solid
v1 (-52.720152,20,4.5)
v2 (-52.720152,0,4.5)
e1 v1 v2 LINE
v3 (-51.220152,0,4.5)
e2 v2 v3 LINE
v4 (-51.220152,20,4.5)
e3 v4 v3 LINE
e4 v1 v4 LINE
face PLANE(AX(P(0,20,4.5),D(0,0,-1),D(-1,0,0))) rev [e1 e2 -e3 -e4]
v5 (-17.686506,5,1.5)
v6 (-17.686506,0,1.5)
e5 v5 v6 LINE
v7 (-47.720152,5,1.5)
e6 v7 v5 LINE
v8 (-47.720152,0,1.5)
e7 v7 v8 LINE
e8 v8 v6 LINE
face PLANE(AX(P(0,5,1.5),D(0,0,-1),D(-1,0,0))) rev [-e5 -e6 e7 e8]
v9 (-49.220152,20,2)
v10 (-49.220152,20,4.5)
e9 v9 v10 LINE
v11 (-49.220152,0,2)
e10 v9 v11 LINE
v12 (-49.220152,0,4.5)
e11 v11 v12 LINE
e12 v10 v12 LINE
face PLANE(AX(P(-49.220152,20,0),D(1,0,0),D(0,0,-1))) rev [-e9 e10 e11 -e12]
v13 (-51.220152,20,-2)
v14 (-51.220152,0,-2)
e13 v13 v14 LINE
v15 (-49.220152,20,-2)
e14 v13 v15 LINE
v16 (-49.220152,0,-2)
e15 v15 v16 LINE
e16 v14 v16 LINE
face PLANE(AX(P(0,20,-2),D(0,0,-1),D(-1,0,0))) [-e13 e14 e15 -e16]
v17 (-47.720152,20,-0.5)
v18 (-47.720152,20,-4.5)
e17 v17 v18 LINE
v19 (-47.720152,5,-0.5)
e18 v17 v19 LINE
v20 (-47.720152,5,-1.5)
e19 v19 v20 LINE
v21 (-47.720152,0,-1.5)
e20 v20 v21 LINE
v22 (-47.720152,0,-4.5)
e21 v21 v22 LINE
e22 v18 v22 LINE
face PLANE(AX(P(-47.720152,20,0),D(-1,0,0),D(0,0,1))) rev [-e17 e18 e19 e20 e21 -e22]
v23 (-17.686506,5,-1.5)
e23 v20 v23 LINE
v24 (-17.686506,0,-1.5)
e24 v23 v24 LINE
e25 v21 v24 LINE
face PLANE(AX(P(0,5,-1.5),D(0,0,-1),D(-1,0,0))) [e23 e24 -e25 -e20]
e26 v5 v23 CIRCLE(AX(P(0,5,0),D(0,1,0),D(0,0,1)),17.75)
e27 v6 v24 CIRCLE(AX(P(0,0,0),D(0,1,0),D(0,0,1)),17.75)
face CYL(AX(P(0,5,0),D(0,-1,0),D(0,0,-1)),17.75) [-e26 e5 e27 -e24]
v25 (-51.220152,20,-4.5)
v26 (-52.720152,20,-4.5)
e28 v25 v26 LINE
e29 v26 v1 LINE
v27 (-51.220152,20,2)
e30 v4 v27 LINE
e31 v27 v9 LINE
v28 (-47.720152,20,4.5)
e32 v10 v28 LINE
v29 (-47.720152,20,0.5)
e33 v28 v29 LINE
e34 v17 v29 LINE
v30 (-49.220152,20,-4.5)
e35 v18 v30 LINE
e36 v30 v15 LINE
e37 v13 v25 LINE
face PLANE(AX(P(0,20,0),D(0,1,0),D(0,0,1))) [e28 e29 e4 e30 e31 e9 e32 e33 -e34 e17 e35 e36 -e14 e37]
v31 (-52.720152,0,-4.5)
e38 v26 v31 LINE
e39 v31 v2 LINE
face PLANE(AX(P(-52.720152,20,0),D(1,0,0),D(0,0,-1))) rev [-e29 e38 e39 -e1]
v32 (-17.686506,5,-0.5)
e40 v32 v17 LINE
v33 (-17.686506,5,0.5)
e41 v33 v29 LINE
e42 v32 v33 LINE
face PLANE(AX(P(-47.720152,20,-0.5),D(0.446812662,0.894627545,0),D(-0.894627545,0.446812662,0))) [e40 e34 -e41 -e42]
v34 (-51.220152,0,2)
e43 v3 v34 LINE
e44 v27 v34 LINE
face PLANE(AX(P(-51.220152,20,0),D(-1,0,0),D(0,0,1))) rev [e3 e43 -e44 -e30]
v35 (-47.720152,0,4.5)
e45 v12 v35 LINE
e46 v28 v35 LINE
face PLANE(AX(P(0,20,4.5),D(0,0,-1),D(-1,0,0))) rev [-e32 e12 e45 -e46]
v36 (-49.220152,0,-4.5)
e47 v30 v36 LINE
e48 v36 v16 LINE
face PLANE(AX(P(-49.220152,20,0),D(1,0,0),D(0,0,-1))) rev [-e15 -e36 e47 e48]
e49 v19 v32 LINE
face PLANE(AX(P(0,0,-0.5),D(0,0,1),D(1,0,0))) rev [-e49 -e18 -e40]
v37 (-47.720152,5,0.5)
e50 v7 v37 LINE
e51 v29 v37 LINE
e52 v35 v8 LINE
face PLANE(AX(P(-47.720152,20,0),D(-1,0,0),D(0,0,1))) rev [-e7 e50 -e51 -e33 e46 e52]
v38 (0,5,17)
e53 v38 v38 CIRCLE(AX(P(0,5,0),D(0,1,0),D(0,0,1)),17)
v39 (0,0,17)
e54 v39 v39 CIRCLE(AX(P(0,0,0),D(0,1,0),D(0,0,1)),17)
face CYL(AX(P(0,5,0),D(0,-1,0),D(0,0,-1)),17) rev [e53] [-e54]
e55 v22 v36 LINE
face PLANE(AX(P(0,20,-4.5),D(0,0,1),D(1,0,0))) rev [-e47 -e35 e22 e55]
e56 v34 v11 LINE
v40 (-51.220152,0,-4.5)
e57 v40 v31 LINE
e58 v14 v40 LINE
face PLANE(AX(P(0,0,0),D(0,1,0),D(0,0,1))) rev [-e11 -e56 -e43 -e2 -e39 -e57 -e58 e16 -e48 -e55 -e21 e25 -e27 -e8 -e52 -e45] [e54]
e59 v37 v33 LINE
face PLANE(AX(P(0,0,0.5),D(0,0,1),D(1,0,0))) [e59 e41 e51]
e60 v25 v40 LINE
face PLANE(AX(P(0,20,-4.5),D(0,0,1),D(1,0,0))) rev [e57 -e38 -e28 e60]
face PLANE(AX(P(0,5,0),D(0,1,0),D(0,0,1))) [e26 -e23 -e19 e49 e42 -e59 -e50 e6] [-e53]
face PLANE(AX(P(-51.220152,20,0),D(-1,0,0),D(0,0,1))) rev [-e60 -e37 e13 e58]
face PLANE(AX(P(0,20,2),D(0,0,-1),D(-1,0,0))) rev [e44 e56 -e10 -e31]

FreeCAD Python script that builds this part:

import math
import FreeCAD as App
import Part
import Sketcher

V = App.Vector

doc = App.newDocument("Part")
params = doc.addObject("Spreadsheet::Sheet", "Params")
for row, (alias, value) in enumerate([
    ("sketch1_diameter", "34 mm"),
    ("sketch1_height", "3 mm"),
    ("sketch1_radius", "17.75 mm"),
    ("pad1_length", "5 mm"),
    ("sketch2_width", "2 mm"),
    ("sketch2_height", "9 mm"),
    ("sketch2_width2", "1.5 mm"),
    ("sketch2_height2", "2.5 mm"),
    ("pad2_length", "20 mm"),
    ("sketch3_height", "15 mm"),
    ("pad3_length", "1 mm"),
], start=1):
    params.set(f"A{row}", alias)
    params.set(f"B{row}", "=" + value)
    params.setAlias(f"B{row}", alias)

body = doc.addObject("PartDesign::Body", "Body")

sketch1 = doc.addObject("Sketcher::SketchObject", "Sketch")
body.addObject(sketch1)
sketch1.AttachmentSupport = (doc.XZ_Plane, [""])
sketch1.MapMode = "FlatFace"
sketch1.addGeometry(Part.LineSegment(V(-17.686506, -1.5, 0), V(-47.720152, -1.5, 0)), False)
sketch1.addGeometry(Part.LineSegment(V(-47.720152, -1.5, 0), V(-47.720152, 1.5, 0)), False)
sketch1.addGeometry(Part.LineSegment(V(-47.720152, 1.5, 0), V(-17.686506, 1.5, 0)), False)
sketch1.addGeometry(Part.ArcOfCircle(Part.Circle(V(0, 0, 0), V(0, 0, 1), 17.75), math.radians(-175.152322), math.radians(175.152322)), False)
sketch1.addGeometry(Part.Circle(V(0, 0, 0), V(0, 0, 1), 17), False)
sketch1.addConstraint(Sketcher.Constraint("Coincident", 0, 2, 1, 1))
sketch1.addConstraint(Sketcher.Constraint("Coincident", 1, 2, 2, 1))
sketch1.addConstraint(Sketcher.Constraint("Coincident", 2, 2, 3, 2))
sketch1.addConstraint(Sketcher.Constraint("Coincident", 3, 1, 0, 1))
sketch1.addConstraint(Sketcher.Constraint("Horizontal", 0))
sketch1.addConstraint(Sketcher.Constraint("Vertical", 1))
sketch1.addConstraint(Sketcher.Constraint("Horizontal", 2))
sketch1.addConstraint(Sketcher.Constraint("Coincident", 3, 3, -1, 1))
sketch1.addConstraint(Sketcher.Constraint("Coincident", 4, 3, -1, 1))
sketch1.addConstraint(Sketcher.Constraint("Vertical", 2, 2, 3, 1))
sketch1.addConstraint(Sketcher.Constraint("Diameter", 4, 34.0))
sketch1.addConstraint(Sketcher.Constraint("DistanceY", 1, 1, 1, 2, 3.0))
sketch1.addConstraint(Sketcher.Constraint("Radius", 3, 17.75))
sketch1.addConstraint(Sketcher.Constraint("DistanceX", 0, 2, 0, 1, 30.033646))
sketch1.setExpression("Constraints[10]", "Params.sketch1_diameter")
sketch1.setExpression("Constraints[11]", "Params.sketch1_height")
sketch1.setExpression("Constraints[12]", "Params.sketch1_radius")
pad1 = doc.addObject("PartDesign::Pad", "Pad")
body.addObject(pad1)
pad1.Profile = sketch1
pad1.setExpression("Length", "Params.pad1_length")
pad1.Reversed = True

sketch2 = doc.addObject("Sketcher::SketchObject", "Sketch001")
body.addObject(sketch2)
sketch2.AttachmentSupport = (doc.XZ_Plane, [""])
sketch2.MapMode = "FlatFace"
sketch2.addGeometry(Part.LineSegment(V(-47.720152, -4.5, 0), V(-49.220152, -4.5, 0)), False)
sketch2.addGeometry(Part.LineSegment(V(-49.220152, -4.5, 0), V(-49.220152, -2, 0)), False)
sketch2.addGeometry(Part.LineSegment(V(-49.220152, -2, 0), V(-51.220152, -2, 0)), False)
sketch2.addGeometry(Part.LineSegment(V(-51.220152, -2, 0), V(-51.220152, -4.5, 0)), False)
sketch2.addGeometry(Part.LineSegment(V(-51.220152, -4.5, 0), V(-52.720152, -4.5, 0)), False)
sketch2.addGeometry(Part.LineSegment(V(-52.720152, -4.5, 0), V(-52.720152, 4.5, 0)), False)
sketch2.addGeometry(Part.LineSegment(V(-52.720152, 4.5, 0), V(-51.220152, 4.5, 0)), False)
sketch2.addGeometry(Part.LineSegment(V(-51.220152, 4.5, 0), V(-51.220152, 2, 0)), False)
sketch2.addGeometry(Part.LineSegment(V(-51.220152, 2, 0), V(-49.220152, 2, 0)), False)
sketch2.addGeometry(Part.LineSegment(V(-49.220152, 2, 0), V(-49.220152, 4.5, 0)), False)
sketch2.addGeometry(Part.LineSegment(V(-49.220152, 4.5, 0), V(-47.720152, 4.5, 0)), False)
sketch2.addGeometry(Part.LineSegment(V(-47.720152, 4.5, 0), V(-47.720152, -4.5, 0)), False)
sketch2.addConstraint(Sketcher.Constraint("Coincident", 0, 2, 1, 1))
sketch2.addConstraint(Sketcher.Constraint("Coincident", 1, 2, 2, 1))
sketch2.addConstraint(Sketcher.Constraint("Coincident", 2, 2, 3, 1))
sketch2.addConstraint(Sketcher.Constraint("Coincident", 3, 2, 4, 1))
sketch2.addConstraint(Sketcher.Constraint("Coincident", 4, 2, 5, 1))
sketch2.addConstraint(Sketcher.Constraint("Coincident", 5, 2, 6, 1))
sketch2.addConstraint(Sketcher.Constraint("Coincident", 6, 2, 7, 1))
sketch2.addConstraint(Sketcher.Constraint("Coincident", 7, 2, 8, 1))
sketch2.addConstraint(Sketcher.Constraint("Coincident", 8, 2, 9, 1))
sketch2.addConstraint(Sketcher.Constraint("Coincident", 9, 2, 10, 1))
sketch2.addConstraint(Sketcher.Constraint("Coincident", 10, 2, 11, 1))
sketch2.addConstraint(Sketcher.Constraint("Coincident", 11, 2, 0, 1))
sketch2.addConstraint(Sketcher.Constraint("Horizontal", 0))
sketch2.addConstraint(Sketcher.Constraint("Vertical", 1))
sketch2.addConstraint(Sketcher.Constraint("Horizontal", 2))
sketch2.addConstraint(Sketcher.Constraint("Vertical", 3))
sketch2.addConstraint(Sketcher.Constraint("Horizontal", 4))
sketch2.addConstraint(Sketcher.Constraint("Vertical", 5))
sketch2.addConstraint(Sketcher.Constraint("Horizontal", 6))
sketch2.addConstraint(Sketcher.Constraint("Vertical", 7))
sketch2.addConstraint(Sketcher.Constraint("Horizontal", 8))
sketch2.addConstraint(Sketcher.Constraint("Vertical", 9))
sketch2.addConstraint(Sketcher.Constraint("Horizontal", 10))
sketch2.addConstraint(Sketcher.Constraint("Vertical", 11))
sketch2.addConstraint(Sketcher.Constraint("Symmetric", 3, 2, 6, 2, -1))
sketch2.addConstraint(Sketcher.Constraint("Symmetric", 1, 2, 8, 2, -1))
sketch2.addConstraint(Sketcher.Constraint("Horizontal", 0, 2, 3, 2))
sketch2.addConstraint(Sketcher.Constraint("Horizontal", 6, 2, 9, 2))
sketch2.addConstraint(Sketcher.Constraint("Equal", 0, 4))
sketch2.addConstraint(Sketcher.Constraint("DistanceX", 2, 2, 2, 1, 2.0))
sketch2.addConstraint(Sketcher.Constraint("DistanceY", 5, 1, 5, 2, 9.0))
sketch2.addConstraint(Sketcher.Constraint("DistanceX", 0, 2, 0, 1, 1.5))
sketch2.addConstraint(Sketcher.Constraint("DistanceY", 1, 1, 1, 2, 2.5))
sketch2.addConstraint(Sketcher.Constraint("DistanceX", 0, 2, -1, 1, 49.220152))
sketch2.setExpression("Constraints[29]", "Params.sketch2_width")
sketch2.setExpression("Constraints[30]", "Params.sketch2_height")
sketch2.setExpression("Constraints[31]", "Params.sketch2_width2")
sketch2.setExpression("Constraints[32]", "Params.sketch2_height2")
pad2 = doc.addObject("PartDesign::Pad", "Pad001")
body.addObject(pad2)
pad2.Profile = sketch2
pad2.setExpression("Length", "Params.pad2_length")
pad2.Reversed = True

sketch3 = doc.addObject("Sketcher::SketchObject", "Sketch002")
body.addObject(sketch3)
sketch3.AttachmentSupport = (doc.XY_Plane, [""])
sketch3.MapMode = "FlatFace"
sketch3.AttachmentOffset = App.Placement(V(0, 0, 0.5), App.Rotation())
sketch3.addGeometry(Part.LineSegment(V(-47.720152, 5, 0), V(-17.686506, 5, 0)), False)
sketch3.addGeometry(Part.LineSegment(V(-17.686506, 5, 0), V(-47.720152, 20, 0)), False)
sketch3.addGeometry(Part.LineSegment(V(-47.720152, 20, 0), V(-47.720152, 5, 0)), False)
sketch3.addConstraint(Sketcher.Constraint("Coincident", 0, 2, 1, 1))
sketch3.addConstraint(Sketcher.Constraint("Coincident", 1, 2, 2, 1))
sketch3.addConstraint(Sketcher.Constraint("Coincident", 2, 2, 0, 1))
sketch3.addConstraint(Sketcher.Constraint("Horizontal", 0))
sketch3.addConstraint(Sketcher.Constraint("Vertical", 2))
sketch3.addConstraint(Sketcher.Constraint("DistanceY", 2, 2, 2, 1, 15.0))
sketch3.addConstraint(Sketcher.Constraint("DistanceY", -1, 1, 0, 2, 5.0))
sketch3.addConstraint(Sketcher.Constraint("DistanceX", 0, 1, 0, 2, 30.033646))
sketch3.addConstraint(Sketcher.Constraint("DistanceX", 1, 2, -1, 1, 47.720152))
sketch3.setExpression("Constraints[5]", "Params.sketch3_height")
pad3 = doc.addObject("PartDesign::Pad", "Pad002")
body.addObject(pad3)
pad3.Profile = sketch3
pad3.setExpression("Length", "Params.pad3_length")
pad3.Reversed = True

doc.recompute()
